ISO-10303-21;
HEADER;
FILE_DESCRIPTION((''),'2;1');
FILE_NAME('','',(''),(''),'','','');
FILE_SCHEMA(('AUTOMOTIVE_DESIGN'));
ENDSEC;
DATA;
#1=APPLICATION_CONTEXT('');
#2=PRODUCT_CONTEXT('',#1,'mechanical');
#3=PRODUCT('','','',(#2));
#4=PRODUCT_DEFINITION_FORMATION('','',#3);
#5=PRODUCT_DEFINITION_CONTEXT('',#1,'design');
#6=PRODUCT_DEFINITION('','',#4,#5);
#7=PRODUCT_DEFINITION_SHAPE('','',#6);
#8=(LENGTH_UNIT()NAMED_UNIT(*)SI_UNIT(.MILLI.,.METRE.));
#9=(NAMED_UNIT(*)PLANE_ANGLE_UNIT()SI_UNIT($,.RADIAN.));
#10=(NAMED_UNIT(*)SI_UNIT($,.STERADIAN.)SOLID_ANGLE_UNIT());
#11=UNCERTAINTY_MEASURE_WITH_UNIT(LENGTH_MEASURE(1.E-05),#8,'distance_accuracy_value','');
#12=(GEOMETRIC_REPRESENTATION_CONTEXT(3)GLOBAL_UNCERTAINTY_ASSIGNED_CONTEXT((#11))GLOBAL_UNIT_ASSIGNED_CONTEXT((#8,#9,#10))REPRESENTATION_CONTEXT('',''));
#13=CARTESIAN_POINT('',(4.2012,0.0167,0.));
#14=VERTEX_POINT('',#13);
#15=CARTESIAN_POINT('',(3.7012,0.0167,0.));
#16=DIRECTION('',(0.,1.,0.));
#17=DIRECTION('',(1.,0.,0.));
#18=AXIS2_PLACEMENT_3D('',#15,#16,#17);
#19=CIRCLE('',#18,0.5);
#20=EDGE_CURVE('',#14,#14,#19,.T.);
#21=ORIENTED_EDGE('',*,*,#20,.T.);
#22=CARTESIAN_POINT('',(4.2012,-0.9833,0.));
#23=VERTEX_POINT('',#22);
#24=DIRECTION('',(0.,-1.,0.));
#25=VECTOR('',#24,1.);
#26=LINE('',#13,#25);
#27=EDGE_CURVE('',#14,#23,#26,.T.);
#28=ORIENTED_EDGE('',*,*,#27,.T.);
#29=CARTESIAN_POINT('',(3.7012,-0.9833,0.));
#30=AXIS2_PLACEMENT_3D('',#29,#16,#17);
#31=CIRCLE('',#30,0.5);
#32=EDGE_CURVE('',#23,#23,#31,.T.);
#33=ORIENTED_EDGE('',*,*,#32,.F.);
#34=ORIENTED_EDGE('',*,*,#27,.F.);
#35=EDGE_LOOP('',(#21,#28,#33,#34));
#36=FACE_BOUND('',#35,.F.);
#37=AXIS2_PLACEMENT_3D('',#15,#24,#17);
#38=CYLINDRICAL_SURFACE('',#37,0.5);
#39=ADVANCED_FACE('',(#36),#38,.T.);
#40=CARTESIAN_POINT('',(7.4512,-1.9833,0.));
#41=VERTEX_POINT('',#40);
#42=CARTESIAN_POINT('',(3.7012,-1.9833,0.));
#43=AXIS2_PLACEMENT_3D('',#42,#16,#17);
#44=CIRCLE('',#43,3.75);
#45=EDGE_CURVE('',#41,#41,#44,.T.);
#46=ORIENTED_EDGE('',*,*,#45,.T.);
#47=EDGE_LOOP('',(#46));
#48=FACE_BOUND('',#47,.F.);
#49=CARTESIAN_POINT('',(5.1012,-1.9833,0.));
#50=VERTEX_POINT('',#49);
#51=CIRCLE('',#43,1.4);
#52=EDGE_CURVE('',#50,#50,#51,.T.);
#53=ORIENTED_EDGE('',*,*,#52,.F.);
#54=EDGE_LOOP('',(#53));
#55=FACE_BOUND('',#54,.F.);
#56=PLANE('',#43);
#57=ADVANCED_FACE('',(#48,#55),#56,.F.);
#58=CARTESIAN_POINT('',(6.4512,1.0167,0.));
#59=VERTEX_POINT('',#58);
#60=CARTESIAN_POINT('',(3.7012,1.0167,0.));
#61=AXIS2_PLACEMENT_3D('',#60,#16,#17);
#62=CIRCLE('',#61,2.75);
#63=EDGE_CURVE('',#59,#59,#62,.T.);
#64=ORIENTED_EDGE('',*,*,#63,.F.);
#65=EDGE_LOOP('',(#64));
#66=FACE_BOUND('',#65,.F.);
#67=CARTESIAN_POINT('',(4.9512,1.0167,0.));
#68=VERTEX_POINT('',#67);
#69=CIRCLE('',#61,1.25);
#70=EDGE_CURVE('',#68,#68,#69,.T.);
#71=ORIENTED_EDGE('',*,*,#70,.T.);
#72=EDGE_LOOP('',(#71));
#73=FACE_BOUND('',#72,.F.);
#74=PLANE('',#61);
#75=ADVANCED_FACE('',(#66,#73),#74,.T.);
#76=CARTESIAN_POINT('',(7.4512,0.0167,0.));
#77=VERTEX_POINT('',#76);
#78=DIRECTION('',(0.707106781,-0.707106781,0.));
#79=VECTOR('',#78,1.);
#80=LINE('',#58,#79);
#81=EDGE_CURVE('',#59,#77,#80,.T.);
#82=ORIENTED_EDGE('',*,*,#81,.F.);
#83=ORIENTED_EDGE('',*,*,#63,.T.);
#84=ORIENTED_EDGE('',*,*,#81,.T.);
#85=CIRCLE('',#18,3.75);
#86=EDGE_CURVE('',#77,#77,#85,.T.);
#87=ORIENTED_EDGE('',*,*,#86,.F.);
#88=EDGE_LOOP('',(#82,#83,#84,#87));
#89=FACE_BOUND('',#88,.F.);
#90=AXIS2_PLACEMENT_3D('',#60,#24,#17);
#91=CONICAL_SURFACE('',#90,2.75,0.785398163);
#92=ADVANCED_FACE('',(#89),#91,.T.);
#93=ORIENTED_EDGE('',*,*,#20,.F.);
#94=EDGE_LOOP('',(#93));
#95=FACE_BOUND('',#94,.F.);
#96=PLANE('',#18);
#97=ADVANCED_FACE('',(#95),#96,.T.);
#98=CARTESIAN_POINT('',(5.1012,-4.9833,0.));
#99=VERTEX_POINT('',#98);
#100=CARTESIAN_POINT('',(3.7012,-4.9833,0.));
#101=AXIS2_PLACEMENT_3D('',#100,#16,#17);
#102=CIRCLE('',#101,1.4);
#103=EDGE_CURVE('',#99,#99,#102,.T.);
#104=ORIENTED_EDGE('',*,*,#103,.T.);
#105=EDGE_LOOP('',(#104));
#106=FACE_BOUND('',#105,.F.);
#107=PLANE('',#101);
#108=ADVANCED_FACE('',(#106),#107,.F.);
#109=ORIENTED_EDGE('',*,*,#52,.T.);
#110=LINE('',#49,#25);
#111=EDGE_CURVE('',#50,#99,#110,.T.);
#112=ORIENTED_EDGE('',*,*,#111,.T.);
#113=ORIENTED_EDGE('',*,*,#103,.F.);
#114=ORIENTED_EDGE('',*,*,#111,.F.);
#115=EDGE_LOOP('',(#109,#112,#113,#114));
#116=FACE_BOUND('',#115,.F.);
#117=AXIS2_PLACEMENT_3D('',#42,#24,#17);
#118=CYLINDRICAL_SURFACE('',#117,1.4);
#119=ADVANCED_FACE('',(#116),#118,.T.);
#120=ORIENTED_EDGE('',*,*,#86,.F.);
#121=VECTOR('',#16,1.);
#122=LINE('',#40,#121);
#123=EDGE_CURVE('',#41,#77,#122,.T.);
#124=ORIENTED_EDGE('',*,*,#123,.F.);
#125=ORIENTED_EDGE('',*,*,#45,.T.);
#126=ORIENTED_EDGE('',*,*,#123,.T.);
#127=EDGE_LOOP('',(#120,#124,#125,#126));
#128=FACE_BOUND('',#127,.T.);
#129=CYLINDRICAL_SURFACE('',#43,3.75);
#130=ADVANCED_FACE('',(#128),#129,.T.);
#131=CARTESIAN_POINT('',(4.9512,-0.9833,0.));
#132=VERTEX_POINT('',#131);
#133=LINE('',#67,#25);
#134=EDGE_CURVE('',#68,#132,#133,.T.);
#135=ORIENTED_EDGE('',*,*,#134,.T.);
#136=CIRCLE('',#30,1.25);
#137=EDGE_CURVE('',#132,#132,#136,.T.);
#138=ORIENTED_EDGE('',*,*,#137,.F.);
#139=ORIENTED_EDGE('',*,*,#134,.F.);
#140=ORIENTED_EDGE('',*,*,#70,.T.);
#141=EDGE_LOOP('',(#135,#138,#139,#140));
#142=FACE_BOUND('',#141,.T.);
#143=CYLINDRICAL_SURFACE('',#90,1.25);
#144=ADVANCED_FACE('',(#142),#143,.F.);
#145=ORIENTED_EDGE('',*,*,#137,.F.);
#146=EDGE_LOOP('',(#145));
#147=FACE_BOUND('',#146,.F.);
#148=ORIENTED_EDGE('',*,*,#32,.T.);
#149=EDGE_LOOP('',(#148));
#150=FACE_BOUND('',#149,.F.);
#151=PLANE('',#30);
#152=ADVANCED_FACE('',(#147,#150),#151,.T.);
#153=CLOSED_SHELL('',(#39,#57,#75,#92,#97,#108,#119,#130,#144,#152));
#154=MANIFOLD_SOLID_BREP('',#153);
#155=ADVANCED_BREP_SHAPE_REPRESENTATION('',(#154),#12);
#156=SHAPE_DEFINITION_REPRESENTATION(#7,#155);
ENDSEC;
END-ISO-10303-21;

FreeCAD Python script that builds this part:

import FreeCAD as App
import Part
import Sketcher
from FreeCAD import Vector
Q = App.Units.Quantity

doc = App.newDocument("Part")
body = doc.addObject("PartDesign::Body", "Body")

# Sketch on XY plane
sketch1 = doc.addObject("Sketcher::SketchObject", "Sketch")
body.addObject(sketch1)
sketch1.AttachmentSupport = (doc.XY_Plane, [""])
sketch1.MapMode = "FlatFace"
sketch1.addGeometry([
    Part.LineSegment(Vector(5.1012, -4.9833, 0), Vector(5.1012, -1.9833, 0)),  # 0
    Part.LineSegment(Vector(5.1012, -1.9833, 0), Vector(7.4512, -1.9833, 0)),  # 1
    Part.LineSegment(Vector(7.4512, -1.9833, 0), Vector(7.4512, 0.0167, 0)),  # 2
    Part.LineSegment(Vector(7.4512, 0.0167, 0), Vector(6.4512, 1.0167, 0)),  # 3
    Part.LineSegment(Vector(6.4512, 1.0167, 0), Vector(4.9512, 1.0167, 0)),  # 4
    Part.LineSegment(Vector(4.9512, 1.0167, 0), Vector(4.9512, -0.9833, 0)),  # 5
    Part.LineSegment(Vector(4.9512, -0.9833, 0), Vector(4.2012, -0.9833, 0)),  # 6
    Part.LineSegment(Vector(4.2012, -0.9833, 0), Vector(4.2012, 0.0167, 0)),  # 7
    Part.LineSegment(Vector(4.2012, 0.0167, 0), Vector(3.7012, 0.0167, 0)),  # 8
    Part.LineSegment(Vector(3.7012, 0.0167, 0), Vector(3.7012, -4.9833, 0)),  # 9
    Part.LineSegment(Vector(3.7012, -4.9833, 0), Vector(5.1012, -4.9833, 0)),  # 10
], False)
sketch1.addGeometry(Part.LineSegment(Vector(3.7012, -4.9833, 0), Vector(3.7012, 1.0167, 0)), True)  # axis
sketch1.addConstraint([
    Sketcher.Constraint("Coincident", 0, 2, 1, 1),
    Sketcher.Constraint("Coincident", 1, 2, 2, 1),
    Sketcher.Constraint("Coincident", 2, 2, 3, 1),
    Sketcher.Constraint("Coincident", 3, 2, 4, 1),
    Sketcher.Constraint("Coincident", 4, 2, 5, 1),
    Sketcher.Constraint("Coincident", 5, 2, 6, 1),
    Sketcher.Constraint("Coincident", 6, 2, 7, 1),
    Sketcher.Constraint("Coincident", 7, 2, 8, 1),
    Sketcher.Constraint("Coincident", 8, 2, 9, 1),
    Sketcher.Constraint("Coincident", 9, 2, 10, 1),
    Sketcher.Constraint("Coincident", 10, 2, 0, 1),
    Sketcher.Constraint("Vertical", 0),
    Sketcher.Constraint("Horizontal", 1),
    Sketcher.Constraint("Vertical", 2),
    Sketcher.Constraint("Horizontal", 4),
    Sketcher.Constraint("Vertical", 5),
    Sketcher.Constraint("Horizontal", 6),
    Sketcher.Constraint("Vertical", 7),
    Sketcher.Constraint("Horizontal", 8),
    Sketcher.Constraint("Vertical", 9),
    Sketcher.Constraint("Horizontal", 10),
    Sketcher.Constraint("Vertical", 11),
    Sketcher.Constraint("Coincident", 11, 1, 9, 2),
    Sketcher.Constraint("Horizontal", 2, 2, 7, 2),
    Sketcher.Constraint("Horizontal", 4, 2, 11, 2),
    Sketcher.Constraint("Equal", 2, 5),
    Sketcher.Constraint("DistanceY", 0, 1, 0, 2, Q("3 mm")),
    Sketcher.Constraint("DistanceY", 2, 1, 2, 2, Q("2 mm")),
    Sketcher.Constraint("DistanceY", 7, 1, 7, 2, Q("1 mm")),
    Sketcher.Constraint("Angle", 3, Q("135 deg")),
    Sketcher.Constraint("DistanceX", 4, 2, 4, 1, Q("1.5 mm")),
    Sketcher.Constraint("DistanceX", 8, 2, 8, 1, Q("0.5 mm")),
    Sketcher.Constraint("DistanceX", 10, 1, 10, 2, Q("1.4 mm")),
    Sketcher.Constraint("DistanceX", 1, 1, 1, 2, Q("2.35 mm")),
    Sketcher.Constraint("DistanceX", -1, 1, 0, 2, Q("5.1012 mm")),
    Sketcher.Constraint("DistanceY", 0, 2, -1, 1, Q("1.9833 mm")),
])
revolution = doc.addObject("PartDesign::Revolution", "Revolution")
body.addObject(revolution)
revolution.Profile = sketch1
revolution.ReferenceAxis = (sketch1, ["Axis0"])
revolution.Angle = 360

doc.recompute()
